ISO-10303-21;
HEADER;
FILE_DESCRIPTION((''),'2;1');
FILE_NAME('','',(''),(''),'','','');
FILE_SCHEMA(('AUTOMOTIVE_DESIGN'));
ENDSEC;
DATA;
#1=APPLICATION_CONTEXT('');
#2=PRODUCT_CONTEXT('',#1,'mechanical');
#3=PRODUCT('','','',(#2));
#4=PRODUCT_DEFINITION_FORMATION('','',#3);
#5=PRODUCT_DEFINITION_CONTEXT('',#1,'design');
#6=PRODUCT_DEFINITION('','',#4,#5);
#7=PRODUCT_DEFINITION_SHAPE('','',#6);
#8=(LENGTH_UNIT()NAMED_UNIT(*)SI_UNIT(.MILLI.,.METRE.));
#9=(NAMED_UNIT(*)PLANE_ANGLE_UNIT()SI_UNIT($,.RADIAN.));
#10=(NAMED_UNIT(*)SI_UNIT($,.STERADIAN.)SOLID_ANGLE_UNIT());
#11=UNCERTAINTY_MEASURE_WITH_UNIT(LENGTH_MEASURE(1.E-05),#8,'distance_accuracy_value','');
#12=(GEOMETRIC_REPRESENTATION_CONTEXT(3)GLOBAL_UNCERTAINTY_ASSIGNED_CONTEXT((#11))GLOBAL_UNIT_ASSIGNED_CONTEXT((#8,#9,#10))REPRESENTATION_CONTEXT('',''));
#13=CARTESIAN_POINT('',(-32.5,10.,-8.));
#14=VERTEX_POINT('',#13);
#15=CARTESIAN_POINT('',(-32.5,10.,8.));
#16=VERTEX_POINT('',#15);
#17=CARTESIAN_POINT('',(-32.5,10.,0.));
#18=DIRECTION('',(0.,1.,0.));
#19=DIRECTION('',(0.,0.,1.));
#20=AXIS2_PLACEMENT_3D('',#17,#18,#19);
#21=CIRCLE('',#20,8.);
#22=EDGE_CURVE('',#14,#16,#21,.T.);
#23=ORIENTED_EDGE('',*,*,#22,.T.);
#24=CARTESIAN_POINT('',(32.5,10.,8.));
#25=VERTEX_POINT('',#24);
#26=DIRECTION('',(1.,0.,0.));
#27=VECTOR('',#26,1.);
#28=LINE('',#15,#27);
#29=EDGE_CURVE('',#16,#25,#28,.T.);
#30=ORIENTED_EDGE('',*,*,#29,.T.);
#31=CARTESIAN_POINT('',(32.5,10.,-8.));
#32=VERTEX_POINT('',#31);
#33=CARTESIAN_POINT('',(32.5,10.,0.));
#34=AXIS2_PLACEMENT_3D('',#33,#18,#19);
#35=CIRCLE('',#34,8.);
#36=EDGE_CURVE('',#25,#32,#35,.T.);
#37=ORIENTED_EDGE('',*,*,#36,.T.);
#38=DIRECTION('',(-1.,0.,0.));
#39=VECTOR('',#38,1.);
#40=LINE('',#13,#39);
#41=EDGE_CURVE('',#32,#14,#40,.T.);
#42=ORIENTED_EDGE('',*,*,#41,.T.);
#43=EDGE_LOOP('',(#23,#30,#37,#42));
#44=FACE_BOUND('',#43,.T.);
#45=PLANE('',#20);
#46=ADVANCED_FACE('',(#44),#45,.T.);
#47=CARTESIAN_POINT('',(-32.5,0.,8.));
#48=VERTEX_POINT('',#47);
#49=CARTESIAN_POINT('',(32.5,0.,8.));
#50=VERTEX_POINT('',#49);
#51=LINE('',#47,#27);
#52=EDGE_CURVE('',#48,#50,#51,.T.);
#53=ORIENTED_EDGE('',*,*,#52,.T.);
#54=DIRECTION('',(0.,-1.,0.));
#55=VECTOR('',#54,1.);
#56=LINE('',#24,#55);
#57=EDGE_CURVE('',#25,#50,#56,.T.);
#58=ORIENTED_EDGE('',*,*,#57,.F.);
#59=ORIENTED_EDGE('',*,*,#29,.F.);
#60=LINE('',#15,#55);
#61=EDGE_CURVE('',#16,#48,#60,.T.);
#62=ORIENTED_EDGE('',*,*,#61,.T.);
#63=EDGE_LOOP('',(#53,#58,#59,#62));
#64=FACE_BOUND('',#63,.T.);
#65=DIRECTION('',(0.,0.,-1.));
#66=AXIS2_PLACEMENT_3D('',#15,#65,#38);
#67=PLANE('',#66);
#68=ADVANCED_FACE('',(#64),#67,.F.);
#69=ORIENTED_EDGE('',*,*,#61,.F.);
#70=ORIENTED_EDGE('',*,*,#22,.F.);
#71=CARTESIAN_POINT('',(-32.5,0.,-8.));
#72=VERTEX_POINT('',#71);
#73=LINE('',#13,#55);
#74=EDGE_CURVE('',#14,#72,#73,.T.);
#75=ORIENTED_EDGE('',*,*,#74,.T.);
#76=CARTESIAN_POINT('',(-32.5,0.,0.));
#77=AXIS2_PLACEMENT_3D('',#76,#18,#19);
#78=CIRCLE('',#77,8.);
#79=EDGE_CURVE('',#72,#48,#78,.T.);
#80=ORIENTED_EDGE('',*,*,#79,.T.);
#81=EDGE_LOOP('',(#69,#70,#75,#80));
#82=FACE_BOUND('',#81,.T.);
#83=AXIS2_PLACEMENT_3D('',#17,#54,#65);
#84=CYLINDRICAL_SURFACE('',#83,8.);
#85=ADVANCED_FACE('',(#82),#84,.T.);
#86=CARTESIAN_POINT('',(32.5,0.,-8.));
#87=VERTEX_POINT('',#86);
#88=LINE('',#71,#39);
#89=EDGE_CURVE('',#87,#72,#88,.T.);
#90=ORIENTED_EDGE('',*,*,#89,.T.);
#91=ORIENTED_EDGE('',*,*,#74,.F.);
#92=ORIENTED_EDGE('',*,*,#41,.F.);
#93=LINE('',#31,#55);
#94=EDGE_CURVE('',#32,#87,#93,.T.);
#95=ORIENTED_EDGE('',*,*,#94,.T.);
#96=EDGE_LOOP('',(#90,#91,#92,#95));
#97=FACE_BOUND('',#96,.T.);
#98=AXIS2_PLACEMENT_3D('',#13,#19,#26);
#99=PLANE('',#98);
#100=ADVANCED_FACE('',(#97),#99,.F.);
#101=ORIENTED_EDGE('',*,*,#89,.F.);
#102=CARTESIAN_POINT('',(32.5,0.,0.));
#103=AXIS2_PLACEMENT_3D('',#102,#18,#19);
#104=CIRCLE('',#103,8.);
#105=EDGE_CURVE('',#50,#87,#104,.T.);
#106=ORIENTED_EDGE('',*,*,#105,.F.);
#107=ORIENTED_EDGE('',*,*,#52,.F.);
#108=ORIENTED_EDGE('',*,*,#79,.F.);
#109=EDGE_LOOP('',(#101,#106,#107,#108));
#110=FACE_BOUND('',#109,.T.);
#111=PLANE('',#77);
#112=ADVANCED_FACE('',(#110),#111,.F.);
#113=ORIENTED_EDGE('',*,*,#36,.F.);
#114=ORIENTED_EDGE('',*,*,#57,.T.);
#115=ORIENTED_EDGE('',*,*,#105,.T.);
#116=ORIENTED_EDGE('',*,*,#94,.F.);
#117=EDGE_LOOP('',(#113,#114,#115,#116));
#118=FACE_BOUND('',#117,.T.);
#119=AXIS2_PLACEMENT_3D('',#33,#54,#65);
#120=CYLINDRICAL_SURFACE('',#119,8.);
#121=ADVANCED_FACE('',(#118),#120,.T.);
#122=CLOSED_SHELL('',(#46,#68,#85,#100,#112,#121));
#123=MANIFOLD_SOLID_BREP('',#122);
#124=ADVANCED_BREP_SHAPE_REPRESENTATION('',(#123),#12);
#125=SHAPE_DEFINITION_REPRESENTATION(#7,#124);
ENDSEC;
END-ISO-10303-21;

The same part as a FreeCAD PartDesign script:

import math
import FreeCAD as App
import Part
import Sketcher
Q = App.Units.Quantity

doc = App.newDocument("Part")
body = doc.addObject("PartDesign::Body", "Body")

sketch1 = body.newObject("Sketcher::SketchObject", "Sketch")
sketch1.AttachmentSupport = (doc.getObject("XZ_Plane"), [""])
sketch1.MapMode = "FlatFace"
sketch1.addGeometry([
    Part.LineSegment(App.Vector(32.5, -8, 0), App.Vector(-32.5, -8, 0)),
    Part.ArcOfCircle(Part.Circle(App.Vector(-32.5, 0, 0), App.Vector(0, 0, 1), 8), math.radians(90), math.radians(270)),
    Part.LineSegment(App.Vector(-32.5, 8, 0), App.Vector(32.5, 8, 0)),
    Part.ArcOfCircle(Part.Circle(App.Vector(32.5, 0, 0), App.Vector(0, 0, 1), 8), math.radians(-90), math.radians(90)),
], False)
sketch1.addConstraint([
    Sketcher.Constraint("Tangent", 0, 2, 1, 2),
    Sketcher.Constraint("Tangent", 1, 1, 2, 1),
    Sketcher.Constraint("Tangent", 2, 2, 3, 2),
    Sketcher.Constraint("Tangent", 3, 1, 0, 1),
    Sketcher.Constraint("Horizontal", 0),
    Sketcher.Constraint("Horizontal", 2),
    Sketcher.Constraint("Symmetric", 1, 3, 3, 3, -1, 1),
    Sketcher.Constraint("Radius", 1, Q("8 mm")),
    Sketcher.Constraint("DistanceX", 0, 2, 0, 1, Q("65 mm")),
])
pad1 = body.newObject("PartDesign::Pad", "Pad")
pad1.Profile = sketch1
pad1.Length = 10
pad1.Reversed = True

doc.recompute()
